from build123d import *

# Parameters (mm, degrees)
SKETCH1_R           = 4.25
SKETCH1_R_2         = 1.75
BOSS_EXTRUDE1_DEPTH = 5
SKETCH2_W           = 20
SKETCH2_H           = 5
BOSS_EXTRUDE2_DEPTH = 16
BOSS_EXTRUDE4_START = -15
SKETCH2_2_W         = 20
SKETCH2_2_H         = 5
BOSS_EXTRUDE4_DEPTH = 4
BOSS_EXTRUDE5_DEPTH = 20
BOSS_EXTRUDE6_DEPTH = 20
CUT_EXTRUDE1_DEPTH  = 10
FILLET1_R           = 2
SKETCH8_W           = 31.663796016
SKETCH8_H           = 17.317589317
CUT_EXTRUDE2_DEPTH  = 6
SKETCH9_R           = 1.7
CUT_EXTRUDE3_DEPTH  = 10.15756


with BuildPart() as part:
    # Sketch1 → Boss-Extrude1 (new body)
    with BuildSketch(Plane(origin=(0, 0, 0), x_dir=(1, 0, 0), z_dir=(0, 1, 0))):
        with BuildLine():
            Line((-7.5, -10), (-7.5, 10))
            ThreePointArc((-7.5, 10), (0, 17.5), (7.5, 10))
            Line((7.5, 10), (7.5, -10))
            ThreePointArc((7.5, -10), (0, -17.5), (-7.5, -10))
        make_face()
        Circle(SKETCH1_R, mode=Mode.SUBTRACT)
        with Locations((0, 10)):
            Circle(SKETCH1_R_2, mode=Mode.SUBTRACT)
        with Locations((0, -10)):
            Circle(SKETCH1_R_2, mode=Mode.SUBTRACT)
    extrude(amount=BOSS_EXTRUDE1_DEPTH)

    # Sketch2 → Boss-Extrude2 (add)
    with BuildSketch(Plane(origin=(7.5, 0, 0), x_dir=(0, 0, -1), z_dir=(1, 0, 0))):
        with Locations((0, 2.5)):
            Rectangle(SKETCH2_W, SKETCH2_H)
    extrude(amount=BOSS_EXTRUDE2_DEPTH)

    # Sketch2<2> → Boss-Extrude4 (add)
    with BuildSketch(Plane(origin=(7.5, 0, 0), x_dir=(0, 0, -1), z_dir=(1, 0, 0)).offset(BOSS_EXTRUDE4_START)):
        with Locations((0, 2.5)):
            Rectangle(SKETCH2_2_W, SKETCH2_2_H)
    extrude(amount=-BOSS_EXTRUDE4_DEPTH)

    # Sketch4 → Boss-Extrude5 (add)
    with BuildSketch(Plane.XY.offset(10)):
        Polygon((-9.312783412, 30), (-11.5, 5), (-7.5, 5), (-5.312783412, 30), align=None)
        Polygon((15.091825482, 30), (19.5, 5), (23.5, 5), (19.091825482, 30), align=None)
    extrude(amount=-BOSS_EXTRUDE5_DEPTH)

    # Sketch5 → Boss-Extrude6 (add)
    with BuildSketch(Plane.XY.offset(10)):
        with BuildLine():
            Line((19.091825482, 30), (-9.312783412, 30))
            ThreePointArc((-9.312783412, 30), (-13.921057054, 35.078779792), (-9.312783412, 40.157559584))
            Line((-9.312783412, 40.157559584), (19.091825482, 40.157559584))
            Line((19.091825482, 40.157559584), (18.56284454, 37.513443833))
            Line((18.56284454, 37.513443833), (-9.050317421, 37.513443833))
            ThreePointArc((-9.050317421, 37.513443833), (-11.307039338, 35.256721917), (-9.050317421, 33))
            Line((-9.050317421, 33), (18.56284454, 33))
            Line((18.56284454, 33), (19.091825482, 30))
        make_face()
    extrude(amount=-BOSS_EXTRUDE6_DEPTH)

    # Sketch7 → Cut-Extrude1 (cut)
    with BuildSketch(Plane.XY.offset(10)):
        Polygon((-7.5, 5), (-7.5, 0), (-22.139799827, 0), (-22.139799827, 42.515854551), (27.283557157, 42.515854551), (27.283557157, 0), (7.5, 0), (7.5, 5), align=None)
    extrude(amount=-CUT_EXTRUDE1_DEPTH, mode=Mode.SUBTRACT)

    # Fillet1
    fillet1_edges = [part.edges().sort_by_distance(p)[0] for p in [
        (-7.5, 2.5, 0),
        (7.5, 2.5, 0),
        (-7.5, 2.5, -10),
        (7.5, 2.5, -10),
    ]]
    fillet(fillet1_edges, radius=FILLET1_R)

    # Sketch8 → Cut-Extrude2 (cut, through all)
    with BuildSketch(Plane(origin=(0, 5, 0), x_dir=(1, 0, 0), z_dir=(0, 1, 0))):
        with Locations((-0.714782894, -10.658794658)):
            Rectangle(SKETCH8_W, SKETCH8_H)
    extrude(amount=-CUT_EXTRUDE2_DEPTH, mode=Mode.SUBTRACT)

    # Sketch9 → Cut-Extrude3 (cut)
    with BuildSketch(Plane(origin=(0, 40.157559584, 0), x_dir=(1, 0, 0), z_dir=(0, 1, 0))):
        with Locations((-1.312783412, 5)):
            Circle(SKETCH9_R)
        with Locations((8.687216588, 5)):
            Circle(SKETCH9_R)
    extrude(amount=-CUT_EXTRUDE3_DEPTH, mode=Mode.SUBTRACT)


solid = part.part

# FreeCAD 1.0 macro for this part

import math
import FreeCAD as App
import Part
import Sketcher
Q = App.Units.Quantity


def edges_at(feature, points):
    """Names of the edges that pass closest to the given points."""
    edges = feature.Shape.Edges
    near = lambda p: min(range(len(edges)), key=lambda i: edges[i].distToShape(Part.Vertex(*p))[0])
    return sorted({f"Edge{near(p) + 1}" for p in points})

doc = App.newDocument("Part")
params = doc.addObject("Spreadsheet::Sheet", "Params")
for row, (alias, value) in enumerate([
    ("sketch1_diameter", "3.5 mm"),
    ("sketch1_diameter2", "8.5 mm"),
    ("sketch1_radius", "7.5 mm"),
    ("sketch1_height", "20 mm"),
    ("pad1_length", "5 mm"),
    ("sketch2_width", "5 mm"),
    ("sketch2_height", "20 mm"),
    ("pad2_length", "16 mm"),
    ("sketch3_width", "5 mm"),
    ("sketch3_height", "20 mm"),
    ("pad3_length", "4 mm"),
    ("sketch4_width", "4 mm"),
    ("pad4_length", "20 mm"),
    ("pad5_length", "20 mm"),
    ("sketch6_width", "15 mm"),
    ("sketch6_height", "5 mm"),
    ("pocket1_length", "10 mm"),
    ("fillet_radius", "2 mm"),
    ("sketch8_diameter", "3.4 mm"),
    ("pocket3_length", "10.15756 mm"),
], start=1):
    params.set(f"A{row}", alias)
    params.set(f"B{row}", "=" + value)
    params.setAlias(f"B{row}", alias)

body = doc.addObject("PartDesign::Body", "Body")

# Sketch on XZ plane
sketch1 = body.newObject("Sketcher::SketchObject", "Sketch")
sketch1.AttachmentSupport = (doc.getObject("XZ_Plane"), [""])
sketch1.MapMode = "FlatFace"
sketch1.addGeometry([
    Part.LineSegment(App.Vector(-7.5, -10, 0), App.Vector(-7.5, 10, 0)),  # 0
    Part.ArcOfCircle(Part.Circle(App.Vector(0, 10, 0), App.Vector(0, 0, 1), 7.5), math.radians(0), math.radians(180)),  # 1
    Part.LineSegment(App.Vector(7.5, 10, 0), App.Vector(7.5, -10, 0)),  # 2
    Part.ArcOfCircle(Part.Circle(App.Vector(0, -10, 0), App.Vector(0, 0, 1), 7.5), math.radians(180), math.radians(360)),  # 3
    Part.Circle(App.Vector(0, 10, 0), App.Vector(0, 0, 1), 1.8),  # 4
    Part.Circle(App.Vector(0, 0, 0), App.Vector(0, 0, 1), 4.2),  # 5
    Part.Circle(App.Vector(0, -10, 0), App.Vector(0, 0, 1), 1.8),  # 6
], False)
sketch1.addConstraint([
    Sketcher.Constraint("Tangent", 0, 2, 1, 2),
    Sketcher.Constraint("Tangent", 1, 1, 2, 1),
    Sketcher.Constraint("Tangent", 2, 2, 3, 2),
    Sketcher.Constraint("Tangent", 3, 1, 0, 1),
    Sketcher.Constraint("Vertical", 0),
    Sketcher.Constraint("Vertical", 2),
    Sketcher.Constraint("Coincident", 5, 3, -1, 1),
    Sketcher.Constraint("Coincident", 4, 3, 1, 3),
    Sketcher.Constraint("Coincident", 6, 3, 3, 3),
    Sketcher.Constraint("Equal", 4, 6),
    Sketcher.Constraint("Symmetric", 1, 3, 3, 3, -1, 1),
    Sketcher.Constraint("Diameter", 4, Q("3.5 mm")),
    Sketcher.Constraint("Diameter", 5, Q("8.5 mm")),
    Sketcher.Constraint("Radius", 1, Q("7.5 mm")),
    Sketcher.Constraint("DistanceY", 0, 1, 0, 2, Q("20 mm")),
])
sketch1.setExpression("Constraints[11]", "Params.sketch1_diameter")
sketch1.setExpression("Constraints[12]", "Params.sketch1_diameter2")
sketch1.setExpression("Constraints[13]", "Params.sketch1_radius")
sketch1.setExpression("Constraints[14]", "Params.sketch1_height")
pad1 = body.newObject("PartDesign::Pad", "Pad")
pad1.Profile = sketch1
pad1.setExpression("Length", "Params.pad1_length")
pad1.Reversed = True

# Sketch on YZ plane
sketch2 = body.newObject("Sketcher::SketchObject", "Sketch001")
sketch2.AttachmentSupport = (doc.getObject("YZ_Plane"), [""])
sketch2.MapMode = "FlatFace"
sketch2.AttachmentOffset = App.Placement(App.Vector(0, 0, 7.5), App.Rotation())
sketch2.addGeometry([
    Part.LineSegment(App.Vector(5, 10, 0), App.Vector(0, 10, 0)),
    Part.LineSegment(App.Vector(0, 10, 0), App.Vector(0, -10, 0)),
    Part.LineSegment(App.Vector(0, -10, 0), App.Vector(5, -10, 0)),
    Part.LineSegment(App.Vector(5, -10, 0), App.Vector(5, 10, 0)),
], False)
sketch2.addConstraint([
    Sketcher.Constraint("Coincident", 0, 2, 1, 1),
    Sketcher.Constraint("Coincident", 1, 2, 2, 1),
    Sketcher.Constraint("Coincident", 2, 2, 3, 1),
    Sketcher.Constraint("Coincident", 3, 2, 0, 1),
    Sketcher.Constraint("Horizontal", 0),
    Sketcher.Constraint("Vertical", 1),
    Sketcher.Constraint("Horizontal", 2),
    Sketcher.Constraint("Vertical", 3),
    Sketcher.Constraint("Symmetric", 0, 2, 1, 2, -1, 1),
    Sketcher.Constraint("DistanceX", 0, 2, 0, 1, Q("5 mm")),
    Sketcher.Constraint("DistanceY", 1, 2, 1, 1, Q("20 mm")),
])
sketch2.setExpression("Constraints[9]", "Params.sketch2_width")
sketch2.setExpression("Constraints[10]", "Params.sketch2_height")
pad2 = body.newObject("PartDesign::Pad", "Pad001")
pad2.Profile = sketch2
pad2.setExpression("Length", "Params.pad2_length")

# Sketch on YZ plane
sketch3 = body.newObject("Sketcher::SketchObject", "Sketch002")
sketch3.AttachmentSupport = (doc.getObject("YZ_Plane"), [""])
sketch3.MapMode = "FlatFace"
sketch3.AttachmentOffset = App.Placement(App.Vector(0, 0, -7.5), App.Rotation())
sketch3.addGeometry([
    Part.LineSegment(App.Vector(5, 10, 0), App.Vector(0, 10, 0)),
    Part.LineSegment(App.Vector(0, 10, 0), App.Vector(0, -10, 0)),
    Part.LineSegment(App.Vector(0, -10, 0), App.Vector(5, -10, 0)),
    Part.LineSegment(App.Vector(5, -10, 0), App.Vector(5, 10, 0)),
], False)
sketch3.addConstraint([
    Sketcher.Constraint("Coincident", 0, 2, 1, 1),
    Sketcher.Constraint("Coincident", 1, 2, 2, 1),
    Sketcher.Constraint("Coincident", 2, 2, 3, 1),
    Sketcher.Constraint("Coincident", 3, 2, 0, 1),
    Sketcher.Constraint("Horizontal", 0),
    Sketcher.Constraint("Vertical", 1),
    Sketcher.Constraint("Horizontal", 2),
    Sketcher.Constraint("Vertical", 3),
    Sketcher.Constraint("Symmetric", 0, 2, 1, 2, -1, 1),
    Sketcher.Constraint("DistanceX", 0, 2, 0, 1, Q("5 mm")),
    Sketcher.Constraint("DistanceY", 1, 2, 1, 1, Q("20 mm")),
])
sketch3.setExpression("Constraints[9]", "Params.sketch3_width")
sketch3.setExpression("Constraints[10]", "Params.sketch3_height")
pad3 = body.newObject("PartDesign::Pad", "Pad002")
pad3.Profile = sketch3
pad3.setExpression("Length", "Params.pad3_length")
pad3.Reversed = True

# Sketch on XY plane
sketch4 = body.newObject("Sketcher::SketchObject", "Sketch003")
sketch4.AttachmentSupport = (doc.getObject("XY_Plane"), [""])
sketch4.MapMode = "FlatFace"
sketch4.AttachmentOffset = App.Placement(App.Vector(0, 0, 10), App.Rotation())
sketch4.addGeometry([
    Part.LineSegment(App.Vector(-9.3, 30, 0), App.Vector(-11.5, 5, 0)),  # 0
    Part.LineSegment(App.Vector(-11.5, 5, 0), App.Vector(-7.5, 5, 0)),  # 1
    Part.LineSegment(App.Vector(-7.5, 5, 0), App.Vector(-5.3, 30, 0)),  # 2
    Part.LineSegment(App.Vector(-5.3, 30, 0), App.Vector(-9.3, 30, 0)),  # 3
    Part.LineSegment(App.Vector(15.1, 30, 0), App.Vector(19.5, 5, 0)),  # 4
    Part.LineSegment(App.Vector(19.5, 5, 0), App.Vector(23.5, 5, 0)),  # 5
    Part.LineSegment(App.Vector(23.5, 5, 0), App.Vector(19.1, 30, 0)),  # 6
    Part.LineSegment(App.Vector(19.1, 30, 0), App.Vector(15.1, 30, 0)),  # 7
], False)
sketch4.addConstraint([
    Sketcher.Constraint("Coincident", 0, 2, 1, 1),
    Sketcher.Constraint("Coincident", 1, 2, 2, 1),
    Sketcher.Constraint("Coincident", 2, 2, 3, 1),
    Sketcher.Constraint("Coincident", 3, 2, 0, 1),
    Sketcher.Constraint("Coincident", 4, 2, 5, 1),
    Sketcher.Constraint("Coincident", 5, 2, 6, 1),
    Sketcher.Constraint("Coincident", 6, 2, 7, 1),
    Sketcher.Constraint("Coincident", 7, 2, 4, 1),
    Sketcher.Constraint("Horizontal", 1),
    Sketcher.Constraint("Horizontal", 3),
    Sketcher.Constraint("Horizontal", 5),
    Sketcher.Constraint("Horizontal", 7),
    Sketcher.Constraint("Parallel", 0, 2),
    Sketcher.Constraint("Parallel", 4, 6),
    Sketcher.Constraint("Horizontal", 1, 2, 4, 2),
    Sketcher.Constraint("Horizontal", 3, 2, 6, 2),
    Sketcher.Constraint("Equal", 3, 5),
    Sketcher.Constraint("DistanceX", 1, 1, 1, 2, Q("4 mm")),
    Sketcher.Constraint("Angle", 0, Q("-95 deg")),
    Sketcher.Constraint("Angle", 4, Q("-80 deg")),
    Sketcher.Constraint("DistanceY", -1, 1, 0, 2, Q("5 mm")),
    Sketcher.Constraint("DistanceY", -1, 1, 2, 2, Q("30 mm")),
    Sketcher.Constraint("DistanceX", 1, 2, 4, 2, Q("27 mm")),
    Sketcher.Constraint("DistanceX", 0, 2, -1, 1, Q("11.5 mm")),
])
sketch4.setExpression("Constraints[17]", "Params.sketch4_width")
pad4 = body.newObject("PartDesign::Pad", "Pad003")
pad4.Profile = sketch4
pad4.setExpression("Length", "Params.pad4_length")
pad4.Reversed = True

# Sketch on XY plane
sketch5 = body.newObject("Sketcher::SketchObject", "Sketch004")
sketch5.AttachmentSupport = (doc.getObject("XY_Plane"), [""])
sketch5.MapMode = "FlatFace"
sketch5.AttachmentOffset = App.Placement(App.Vector(0, 0, 10), App.Rotation())
sketch5.addGeometry([
    Part.LineSegment(App.Vector(-9.3, 30, 0), App.Vector(19.1, 30, 0)),  # 0
    Part.LineSegment(App.Vector(19.1, 30, 0), App.Vector(18.6, 33, 0)),  # 1
    Part.LineSegment(App.Vector(18.6, 33, 0), App.Vector(-9.1, 33, 0)),  # 2
    Part.ArcOfCircle(Part.Circle(App.Vector(-9.1, 35.3, 0), App.Vector(0, 0, 1), 2.3), math.radians(90), math.radians(270)),  # 3
    Part.LineSegment(App.Vector(-9.1, 37.5, 0), App.Vector(18.6, 37.5, 0)),  # 4
    Part.LineSegment(App.Vector(18.6, 37.5, 0), App.Vector(19.1, 40.2, 0)),  # 5
    Part.LineSegment(App.Vector(19.1, 40.2, 0), App.Vector(-9.3, 40.2, 0)),  # 6
    Part.ArcOfCircle(Part.Circle(App.Vector(-8.8, 35.1, 0), App.Vector(0, 0, 1), 5.1), math.radians(96), math.radians(264)),  # 7
], False)
sketch5.addConstraint([
    Sketcher.Constraint("Coincident", 0, 2, 1, 1),
    Sketcher.Constraint("Coincident", 1, 2, 2, 1),
    Sketcher.Constraint("Tangent", 2, 2, 3, 2),
    Sketcher.Constraint("Tangent", 3, 1, 4, 1),
    Sketcher.Constraint("Coincident", 4, 2, 5, 1),
    Sketcher.Constraint("Coincident", 5, 2, 6, 1),
    Sketcher.Constraint("Coincident", 6, 2, 7, 1),
    Sketcher.Constraint("Coincident", 7, 2, 0, 1),
    Sketcher.Constraint("Horizontal", 0),
    Sketcher.Constraint("Horizontal", 2),
    Sketcher.Constraint("Horizontal", 4),
    Sketcher.Constraint("Horizontal", 6),
    Sketcher.Constraint("Vertical", 1, 2, 4, 2),
    Sketcher.Constraint("Vertical", 0, 2, 5, 2),
    Sketcher.Constraint("Vertical", 6, 2, 7, 2),
    Sketcher.Constraint("Angle", 1, Q("100 deg")),
    Sketcher.Constraint("DistanceY", -1, 1, 0, 2, Q("30 mm")),
    Sketcher.Constraint("DistanceY", -1, 1, 1, 2, Q("33 mm")),
    Sketcher.Constraint("Radius", 7, Q("5.102799 mm")),
    Sketcher.Constraint("Radius", 3, Q("2.256722 mm")),
    Sketcher.Constraint("DistanceX", 0, 1, 0, 2, Q("28.404609 mm")),
    Sketcher.Constraint("DistanceX", 2, 2, 2, 1, Q("27.613162 mm")),
    Sketcher.Constraint("Distance", 5, Q("2.696511 mm")),
    Sketcher.Constraint("DistanceX", 3, 3, -1, 1, Q("9.050317 mm")),
])
pad5 = body.newObject("PartDesign::Pad", "Pad004")
pad5.Profile = sketch5
pad5.setExpression("Length", "Params.pad5_length")
pad5.Reversed = True

# Sketch on XY plane
sketch6 = body.newObject("Sketcher::SketchObject", "Sketch005")
sketch6.AttachmentSupport = (doc.getObject("XY_Plane"), [""])
sketch6.MapMode = "FlatFace"
sketch6.AttachmentOffset = App.Placement(App.Vector(0, 0, 10), App.Rotation())
sketch6.addGeometry([
    Part.LineSegment(App.Vector(-8, 0, 0), App.Vector(-8, 5, 0)),  # 0
    Part.LineSegment(App.Vector(-8, 5, 0), App.Vector(8, 5, 0)),  # 1
    Part.LineSegment(App.Vector(8, 5, 0), App.Vector(8, 0, 0)),  # 2
    Part.LineSegment(App.Vector(8, 0, 0), App.Vector(27, 0, 0)),  # 3
    Part.LineSegment(App.Vector(27, 0, 0), App.Vector(27, 43, 0)),  # 4
    Part.LineSegment(App.Vector(27, 43, 0), App.Vector(-22, 43, 0)),  # 5
    Part.LineSegment(App.Vector(-22, 43, 0), App.Vector(-22, 0, 0)),  # 6
    Part.LineSegment(App.Vector(-22, 0, 0), App.Vector(-8, 0, 0)),  # 7
], False)
sketch6.addConstraint([
    Sketcher.Constraint("Coincident", 0, 2, 1, 1),
    Sketcher.Constraint("Coincident", 1, 2, 2, 1),
    Sketcher.Constraint("Coincident", 2, 2, 3, 1),
    Sketcher.Constraint("Coincident", 3, 2, 4, 1),
    Sketcher.Constraint("Coincident", 4, 2, 5, 1),
    Sketcher.Constraint("Coincident", 5, 2, 6, 1),
    Sketcher.Constraint("Coincident", 6, 2, 7, 1),
    Sketcher.Constraint("Coincident", 7, 2, 0, 1),
    Sketcher.Constraint("Vertical", 0),
    Sketcher.Constraint("Horizontal", 1),
    Sketcher.Constraint("Vertical", 2),
    Sketcher.Constraint("Horizontal", 3),
    Sketcher.Constraint("Vertical", 4),
    Sketcher.Constraint("Horizontal", 5),
    Sketcher.Constraint("Vertical", 6),
    Sketcher.Constraint("Horizontal", 7),
    Sketcher.Constraint("Symmetric", 2, 2, 7, 2, -1, 1),
    Sketcher.Constraint("PointOnObject", 2, 2, -1),
    Sketcher.Constraint("DistanceX", 1, 1, 1, 2, Q("15 mm")),
    Sketcher.Constraint("DistanceY", 0, 1, 0, 2, Q("5 mm")),
    Sketcher.Constraint("DistanceX", 7, 1, 7, 2, Q("14.6398 mm")),
    Sketcher.Constraint("DistanceX", 3, 1, 3, 2, Q("19.783557 mm")),
    Sketcher.Constraint("DistanceY", 4, 1, 4, 2, Q("42.515855 mm")),
])
sketch6.setExpression("Constraints[18]", "Params.sketch6_width")
sketch6.setExpression("Constraints[19]", "Params.sketch6_height")
pocket1 = body.newObject("PartDesign::Pocket", "Pocket")
pocket1.Profile = sketch6
pocket1.setExpression("Length", "Params.pocket1_length")
doc.recompute()

fillet = body.newObject("PartDesign::Fillet", "Fillet")
fillet.Base = (pocket1, edges_at(pocket1, [
    (-7.5, 2.5, 0),
    (7.5, 2.5, 0),
    (-7.5, 2.5, -10),
    (7.5, 2.5, -10),
]))
fillet.setExpression("Radius", "Params.fillet_radius")

# Sketch on XZ plane
sketch7 = body.newObject("Sketcher::SketchObject", "Sketch006")
sketch7.AttachmentSupport = (doc.getObject("XZ_Plane"), [""])
sketch7.MapMode = "FlatFace"
sketch7.AttachmentOffset = App.Placement(App.Vector(0, 0, -5), App.Rotation())
sketch7.addGeometry([
    Part.LineSegment(App.Vector(-17, 2, 0), App.Vector(-17, 19, 0)),
    Part.LineSegment(App.Vector(-17, 19, 0), App.Vector(15, 19, 0)),
    Part.LineSegment(App.Vector(15, 19, 0), App.Vector(15, 2, 0)),
    Part.LineSegment(App.Vector(15, 2, 0), App.Vector(-17, 2, 0)),
], False)
sketch7.addConstraint([
    Sketcher.Constraint("Coincident", 0, 2, 1, 1),
    Sketcher.Constraint("Coincident", 1, 2, 2, 1),
    Sketcher.Constraint("Coincident", 2, 2, 3, 1),
    Sketcher.Constraint("Coincident", 3, 2, 0, 1),
    Sketcher.Constraint("Vertical", 0),
    Sketcher.Constraint("Horizontal", 1),
    Sketcher.Constraint("Vertical", 2),
    Sketcher.Constraint("Horizontal", 3),
    Sketcher.Constraint("DistanceY", -1, 1, 2, 2, Q("2 mm")),
    Sketcher.Constraint("DistanceY", 0, 1, 0, 2, Q("17.317589 mm")),
    Sketcher.Constraint("DistanceX", 1, 1, 1, 2, Q("31.663796 mm")),
    Sketcher.Constraint("DistanceX", 0, 2, -1, 1, Q("16.546681 mm")),
])
pocket2 = body.newObject("PartDesign::Pocket", "Pocket001")
pocket2.Profile = sketch7
pocket2.Type = "ThroughAll"
pocket2.Reversed = True

# Sketch on XZ plane
sketch8 = body.newObject("Sketcher::SketchObject", "Sketch007")
sketch8.AttachmentSupport = (doc.getObject("XZ_Plane"), [""])
sketch8.MapMode = "FlatFace"
sketch8.AttachmentOffset = App.Placement(App.Vector(0, 0, -40.15756), App.Rotation())
sketch8.addGeometry([
    Part.Circle(App.Vector(-1.3, -5, 0), App.Vector(0, 0, 1), 1.7),
    Part.Circle(App.Vector(8.7, -5, 0), App.Vector(0, 0, 1), 1.7),
], False)
sketch8.addConstraint([
    Sketcher.Constraint("Equal", 0, 1),
    Sketcher.Constraint("Horizontal", 0, 3, 1, 3),
    Sketcher.Constraint("Diameter", 0, Q("3.4 mm")),
    Sketcher.Constraint("DistanceY", 0, 3, -1, 1, Q("5 mm")),
    Sketcher.Constraint("DistanceX", 0, 3, 1, 3, Q("10 mm")),
    Sketcher.Constraint("DistanceX", 0, 3, -1, 1, Q("1.312783 mm")),
])
sketch8.setExpression("Constraints[2]", "Params.sketch8_diameter")
pocket3 = body.newObject("PartDesign::Pocket", "Pocket002")
pocket3.Profile = sketch8
pocket3.setExpression("Length", "Params.pocket3_length")
pocket3.Reversed = True

doc.recompute()
